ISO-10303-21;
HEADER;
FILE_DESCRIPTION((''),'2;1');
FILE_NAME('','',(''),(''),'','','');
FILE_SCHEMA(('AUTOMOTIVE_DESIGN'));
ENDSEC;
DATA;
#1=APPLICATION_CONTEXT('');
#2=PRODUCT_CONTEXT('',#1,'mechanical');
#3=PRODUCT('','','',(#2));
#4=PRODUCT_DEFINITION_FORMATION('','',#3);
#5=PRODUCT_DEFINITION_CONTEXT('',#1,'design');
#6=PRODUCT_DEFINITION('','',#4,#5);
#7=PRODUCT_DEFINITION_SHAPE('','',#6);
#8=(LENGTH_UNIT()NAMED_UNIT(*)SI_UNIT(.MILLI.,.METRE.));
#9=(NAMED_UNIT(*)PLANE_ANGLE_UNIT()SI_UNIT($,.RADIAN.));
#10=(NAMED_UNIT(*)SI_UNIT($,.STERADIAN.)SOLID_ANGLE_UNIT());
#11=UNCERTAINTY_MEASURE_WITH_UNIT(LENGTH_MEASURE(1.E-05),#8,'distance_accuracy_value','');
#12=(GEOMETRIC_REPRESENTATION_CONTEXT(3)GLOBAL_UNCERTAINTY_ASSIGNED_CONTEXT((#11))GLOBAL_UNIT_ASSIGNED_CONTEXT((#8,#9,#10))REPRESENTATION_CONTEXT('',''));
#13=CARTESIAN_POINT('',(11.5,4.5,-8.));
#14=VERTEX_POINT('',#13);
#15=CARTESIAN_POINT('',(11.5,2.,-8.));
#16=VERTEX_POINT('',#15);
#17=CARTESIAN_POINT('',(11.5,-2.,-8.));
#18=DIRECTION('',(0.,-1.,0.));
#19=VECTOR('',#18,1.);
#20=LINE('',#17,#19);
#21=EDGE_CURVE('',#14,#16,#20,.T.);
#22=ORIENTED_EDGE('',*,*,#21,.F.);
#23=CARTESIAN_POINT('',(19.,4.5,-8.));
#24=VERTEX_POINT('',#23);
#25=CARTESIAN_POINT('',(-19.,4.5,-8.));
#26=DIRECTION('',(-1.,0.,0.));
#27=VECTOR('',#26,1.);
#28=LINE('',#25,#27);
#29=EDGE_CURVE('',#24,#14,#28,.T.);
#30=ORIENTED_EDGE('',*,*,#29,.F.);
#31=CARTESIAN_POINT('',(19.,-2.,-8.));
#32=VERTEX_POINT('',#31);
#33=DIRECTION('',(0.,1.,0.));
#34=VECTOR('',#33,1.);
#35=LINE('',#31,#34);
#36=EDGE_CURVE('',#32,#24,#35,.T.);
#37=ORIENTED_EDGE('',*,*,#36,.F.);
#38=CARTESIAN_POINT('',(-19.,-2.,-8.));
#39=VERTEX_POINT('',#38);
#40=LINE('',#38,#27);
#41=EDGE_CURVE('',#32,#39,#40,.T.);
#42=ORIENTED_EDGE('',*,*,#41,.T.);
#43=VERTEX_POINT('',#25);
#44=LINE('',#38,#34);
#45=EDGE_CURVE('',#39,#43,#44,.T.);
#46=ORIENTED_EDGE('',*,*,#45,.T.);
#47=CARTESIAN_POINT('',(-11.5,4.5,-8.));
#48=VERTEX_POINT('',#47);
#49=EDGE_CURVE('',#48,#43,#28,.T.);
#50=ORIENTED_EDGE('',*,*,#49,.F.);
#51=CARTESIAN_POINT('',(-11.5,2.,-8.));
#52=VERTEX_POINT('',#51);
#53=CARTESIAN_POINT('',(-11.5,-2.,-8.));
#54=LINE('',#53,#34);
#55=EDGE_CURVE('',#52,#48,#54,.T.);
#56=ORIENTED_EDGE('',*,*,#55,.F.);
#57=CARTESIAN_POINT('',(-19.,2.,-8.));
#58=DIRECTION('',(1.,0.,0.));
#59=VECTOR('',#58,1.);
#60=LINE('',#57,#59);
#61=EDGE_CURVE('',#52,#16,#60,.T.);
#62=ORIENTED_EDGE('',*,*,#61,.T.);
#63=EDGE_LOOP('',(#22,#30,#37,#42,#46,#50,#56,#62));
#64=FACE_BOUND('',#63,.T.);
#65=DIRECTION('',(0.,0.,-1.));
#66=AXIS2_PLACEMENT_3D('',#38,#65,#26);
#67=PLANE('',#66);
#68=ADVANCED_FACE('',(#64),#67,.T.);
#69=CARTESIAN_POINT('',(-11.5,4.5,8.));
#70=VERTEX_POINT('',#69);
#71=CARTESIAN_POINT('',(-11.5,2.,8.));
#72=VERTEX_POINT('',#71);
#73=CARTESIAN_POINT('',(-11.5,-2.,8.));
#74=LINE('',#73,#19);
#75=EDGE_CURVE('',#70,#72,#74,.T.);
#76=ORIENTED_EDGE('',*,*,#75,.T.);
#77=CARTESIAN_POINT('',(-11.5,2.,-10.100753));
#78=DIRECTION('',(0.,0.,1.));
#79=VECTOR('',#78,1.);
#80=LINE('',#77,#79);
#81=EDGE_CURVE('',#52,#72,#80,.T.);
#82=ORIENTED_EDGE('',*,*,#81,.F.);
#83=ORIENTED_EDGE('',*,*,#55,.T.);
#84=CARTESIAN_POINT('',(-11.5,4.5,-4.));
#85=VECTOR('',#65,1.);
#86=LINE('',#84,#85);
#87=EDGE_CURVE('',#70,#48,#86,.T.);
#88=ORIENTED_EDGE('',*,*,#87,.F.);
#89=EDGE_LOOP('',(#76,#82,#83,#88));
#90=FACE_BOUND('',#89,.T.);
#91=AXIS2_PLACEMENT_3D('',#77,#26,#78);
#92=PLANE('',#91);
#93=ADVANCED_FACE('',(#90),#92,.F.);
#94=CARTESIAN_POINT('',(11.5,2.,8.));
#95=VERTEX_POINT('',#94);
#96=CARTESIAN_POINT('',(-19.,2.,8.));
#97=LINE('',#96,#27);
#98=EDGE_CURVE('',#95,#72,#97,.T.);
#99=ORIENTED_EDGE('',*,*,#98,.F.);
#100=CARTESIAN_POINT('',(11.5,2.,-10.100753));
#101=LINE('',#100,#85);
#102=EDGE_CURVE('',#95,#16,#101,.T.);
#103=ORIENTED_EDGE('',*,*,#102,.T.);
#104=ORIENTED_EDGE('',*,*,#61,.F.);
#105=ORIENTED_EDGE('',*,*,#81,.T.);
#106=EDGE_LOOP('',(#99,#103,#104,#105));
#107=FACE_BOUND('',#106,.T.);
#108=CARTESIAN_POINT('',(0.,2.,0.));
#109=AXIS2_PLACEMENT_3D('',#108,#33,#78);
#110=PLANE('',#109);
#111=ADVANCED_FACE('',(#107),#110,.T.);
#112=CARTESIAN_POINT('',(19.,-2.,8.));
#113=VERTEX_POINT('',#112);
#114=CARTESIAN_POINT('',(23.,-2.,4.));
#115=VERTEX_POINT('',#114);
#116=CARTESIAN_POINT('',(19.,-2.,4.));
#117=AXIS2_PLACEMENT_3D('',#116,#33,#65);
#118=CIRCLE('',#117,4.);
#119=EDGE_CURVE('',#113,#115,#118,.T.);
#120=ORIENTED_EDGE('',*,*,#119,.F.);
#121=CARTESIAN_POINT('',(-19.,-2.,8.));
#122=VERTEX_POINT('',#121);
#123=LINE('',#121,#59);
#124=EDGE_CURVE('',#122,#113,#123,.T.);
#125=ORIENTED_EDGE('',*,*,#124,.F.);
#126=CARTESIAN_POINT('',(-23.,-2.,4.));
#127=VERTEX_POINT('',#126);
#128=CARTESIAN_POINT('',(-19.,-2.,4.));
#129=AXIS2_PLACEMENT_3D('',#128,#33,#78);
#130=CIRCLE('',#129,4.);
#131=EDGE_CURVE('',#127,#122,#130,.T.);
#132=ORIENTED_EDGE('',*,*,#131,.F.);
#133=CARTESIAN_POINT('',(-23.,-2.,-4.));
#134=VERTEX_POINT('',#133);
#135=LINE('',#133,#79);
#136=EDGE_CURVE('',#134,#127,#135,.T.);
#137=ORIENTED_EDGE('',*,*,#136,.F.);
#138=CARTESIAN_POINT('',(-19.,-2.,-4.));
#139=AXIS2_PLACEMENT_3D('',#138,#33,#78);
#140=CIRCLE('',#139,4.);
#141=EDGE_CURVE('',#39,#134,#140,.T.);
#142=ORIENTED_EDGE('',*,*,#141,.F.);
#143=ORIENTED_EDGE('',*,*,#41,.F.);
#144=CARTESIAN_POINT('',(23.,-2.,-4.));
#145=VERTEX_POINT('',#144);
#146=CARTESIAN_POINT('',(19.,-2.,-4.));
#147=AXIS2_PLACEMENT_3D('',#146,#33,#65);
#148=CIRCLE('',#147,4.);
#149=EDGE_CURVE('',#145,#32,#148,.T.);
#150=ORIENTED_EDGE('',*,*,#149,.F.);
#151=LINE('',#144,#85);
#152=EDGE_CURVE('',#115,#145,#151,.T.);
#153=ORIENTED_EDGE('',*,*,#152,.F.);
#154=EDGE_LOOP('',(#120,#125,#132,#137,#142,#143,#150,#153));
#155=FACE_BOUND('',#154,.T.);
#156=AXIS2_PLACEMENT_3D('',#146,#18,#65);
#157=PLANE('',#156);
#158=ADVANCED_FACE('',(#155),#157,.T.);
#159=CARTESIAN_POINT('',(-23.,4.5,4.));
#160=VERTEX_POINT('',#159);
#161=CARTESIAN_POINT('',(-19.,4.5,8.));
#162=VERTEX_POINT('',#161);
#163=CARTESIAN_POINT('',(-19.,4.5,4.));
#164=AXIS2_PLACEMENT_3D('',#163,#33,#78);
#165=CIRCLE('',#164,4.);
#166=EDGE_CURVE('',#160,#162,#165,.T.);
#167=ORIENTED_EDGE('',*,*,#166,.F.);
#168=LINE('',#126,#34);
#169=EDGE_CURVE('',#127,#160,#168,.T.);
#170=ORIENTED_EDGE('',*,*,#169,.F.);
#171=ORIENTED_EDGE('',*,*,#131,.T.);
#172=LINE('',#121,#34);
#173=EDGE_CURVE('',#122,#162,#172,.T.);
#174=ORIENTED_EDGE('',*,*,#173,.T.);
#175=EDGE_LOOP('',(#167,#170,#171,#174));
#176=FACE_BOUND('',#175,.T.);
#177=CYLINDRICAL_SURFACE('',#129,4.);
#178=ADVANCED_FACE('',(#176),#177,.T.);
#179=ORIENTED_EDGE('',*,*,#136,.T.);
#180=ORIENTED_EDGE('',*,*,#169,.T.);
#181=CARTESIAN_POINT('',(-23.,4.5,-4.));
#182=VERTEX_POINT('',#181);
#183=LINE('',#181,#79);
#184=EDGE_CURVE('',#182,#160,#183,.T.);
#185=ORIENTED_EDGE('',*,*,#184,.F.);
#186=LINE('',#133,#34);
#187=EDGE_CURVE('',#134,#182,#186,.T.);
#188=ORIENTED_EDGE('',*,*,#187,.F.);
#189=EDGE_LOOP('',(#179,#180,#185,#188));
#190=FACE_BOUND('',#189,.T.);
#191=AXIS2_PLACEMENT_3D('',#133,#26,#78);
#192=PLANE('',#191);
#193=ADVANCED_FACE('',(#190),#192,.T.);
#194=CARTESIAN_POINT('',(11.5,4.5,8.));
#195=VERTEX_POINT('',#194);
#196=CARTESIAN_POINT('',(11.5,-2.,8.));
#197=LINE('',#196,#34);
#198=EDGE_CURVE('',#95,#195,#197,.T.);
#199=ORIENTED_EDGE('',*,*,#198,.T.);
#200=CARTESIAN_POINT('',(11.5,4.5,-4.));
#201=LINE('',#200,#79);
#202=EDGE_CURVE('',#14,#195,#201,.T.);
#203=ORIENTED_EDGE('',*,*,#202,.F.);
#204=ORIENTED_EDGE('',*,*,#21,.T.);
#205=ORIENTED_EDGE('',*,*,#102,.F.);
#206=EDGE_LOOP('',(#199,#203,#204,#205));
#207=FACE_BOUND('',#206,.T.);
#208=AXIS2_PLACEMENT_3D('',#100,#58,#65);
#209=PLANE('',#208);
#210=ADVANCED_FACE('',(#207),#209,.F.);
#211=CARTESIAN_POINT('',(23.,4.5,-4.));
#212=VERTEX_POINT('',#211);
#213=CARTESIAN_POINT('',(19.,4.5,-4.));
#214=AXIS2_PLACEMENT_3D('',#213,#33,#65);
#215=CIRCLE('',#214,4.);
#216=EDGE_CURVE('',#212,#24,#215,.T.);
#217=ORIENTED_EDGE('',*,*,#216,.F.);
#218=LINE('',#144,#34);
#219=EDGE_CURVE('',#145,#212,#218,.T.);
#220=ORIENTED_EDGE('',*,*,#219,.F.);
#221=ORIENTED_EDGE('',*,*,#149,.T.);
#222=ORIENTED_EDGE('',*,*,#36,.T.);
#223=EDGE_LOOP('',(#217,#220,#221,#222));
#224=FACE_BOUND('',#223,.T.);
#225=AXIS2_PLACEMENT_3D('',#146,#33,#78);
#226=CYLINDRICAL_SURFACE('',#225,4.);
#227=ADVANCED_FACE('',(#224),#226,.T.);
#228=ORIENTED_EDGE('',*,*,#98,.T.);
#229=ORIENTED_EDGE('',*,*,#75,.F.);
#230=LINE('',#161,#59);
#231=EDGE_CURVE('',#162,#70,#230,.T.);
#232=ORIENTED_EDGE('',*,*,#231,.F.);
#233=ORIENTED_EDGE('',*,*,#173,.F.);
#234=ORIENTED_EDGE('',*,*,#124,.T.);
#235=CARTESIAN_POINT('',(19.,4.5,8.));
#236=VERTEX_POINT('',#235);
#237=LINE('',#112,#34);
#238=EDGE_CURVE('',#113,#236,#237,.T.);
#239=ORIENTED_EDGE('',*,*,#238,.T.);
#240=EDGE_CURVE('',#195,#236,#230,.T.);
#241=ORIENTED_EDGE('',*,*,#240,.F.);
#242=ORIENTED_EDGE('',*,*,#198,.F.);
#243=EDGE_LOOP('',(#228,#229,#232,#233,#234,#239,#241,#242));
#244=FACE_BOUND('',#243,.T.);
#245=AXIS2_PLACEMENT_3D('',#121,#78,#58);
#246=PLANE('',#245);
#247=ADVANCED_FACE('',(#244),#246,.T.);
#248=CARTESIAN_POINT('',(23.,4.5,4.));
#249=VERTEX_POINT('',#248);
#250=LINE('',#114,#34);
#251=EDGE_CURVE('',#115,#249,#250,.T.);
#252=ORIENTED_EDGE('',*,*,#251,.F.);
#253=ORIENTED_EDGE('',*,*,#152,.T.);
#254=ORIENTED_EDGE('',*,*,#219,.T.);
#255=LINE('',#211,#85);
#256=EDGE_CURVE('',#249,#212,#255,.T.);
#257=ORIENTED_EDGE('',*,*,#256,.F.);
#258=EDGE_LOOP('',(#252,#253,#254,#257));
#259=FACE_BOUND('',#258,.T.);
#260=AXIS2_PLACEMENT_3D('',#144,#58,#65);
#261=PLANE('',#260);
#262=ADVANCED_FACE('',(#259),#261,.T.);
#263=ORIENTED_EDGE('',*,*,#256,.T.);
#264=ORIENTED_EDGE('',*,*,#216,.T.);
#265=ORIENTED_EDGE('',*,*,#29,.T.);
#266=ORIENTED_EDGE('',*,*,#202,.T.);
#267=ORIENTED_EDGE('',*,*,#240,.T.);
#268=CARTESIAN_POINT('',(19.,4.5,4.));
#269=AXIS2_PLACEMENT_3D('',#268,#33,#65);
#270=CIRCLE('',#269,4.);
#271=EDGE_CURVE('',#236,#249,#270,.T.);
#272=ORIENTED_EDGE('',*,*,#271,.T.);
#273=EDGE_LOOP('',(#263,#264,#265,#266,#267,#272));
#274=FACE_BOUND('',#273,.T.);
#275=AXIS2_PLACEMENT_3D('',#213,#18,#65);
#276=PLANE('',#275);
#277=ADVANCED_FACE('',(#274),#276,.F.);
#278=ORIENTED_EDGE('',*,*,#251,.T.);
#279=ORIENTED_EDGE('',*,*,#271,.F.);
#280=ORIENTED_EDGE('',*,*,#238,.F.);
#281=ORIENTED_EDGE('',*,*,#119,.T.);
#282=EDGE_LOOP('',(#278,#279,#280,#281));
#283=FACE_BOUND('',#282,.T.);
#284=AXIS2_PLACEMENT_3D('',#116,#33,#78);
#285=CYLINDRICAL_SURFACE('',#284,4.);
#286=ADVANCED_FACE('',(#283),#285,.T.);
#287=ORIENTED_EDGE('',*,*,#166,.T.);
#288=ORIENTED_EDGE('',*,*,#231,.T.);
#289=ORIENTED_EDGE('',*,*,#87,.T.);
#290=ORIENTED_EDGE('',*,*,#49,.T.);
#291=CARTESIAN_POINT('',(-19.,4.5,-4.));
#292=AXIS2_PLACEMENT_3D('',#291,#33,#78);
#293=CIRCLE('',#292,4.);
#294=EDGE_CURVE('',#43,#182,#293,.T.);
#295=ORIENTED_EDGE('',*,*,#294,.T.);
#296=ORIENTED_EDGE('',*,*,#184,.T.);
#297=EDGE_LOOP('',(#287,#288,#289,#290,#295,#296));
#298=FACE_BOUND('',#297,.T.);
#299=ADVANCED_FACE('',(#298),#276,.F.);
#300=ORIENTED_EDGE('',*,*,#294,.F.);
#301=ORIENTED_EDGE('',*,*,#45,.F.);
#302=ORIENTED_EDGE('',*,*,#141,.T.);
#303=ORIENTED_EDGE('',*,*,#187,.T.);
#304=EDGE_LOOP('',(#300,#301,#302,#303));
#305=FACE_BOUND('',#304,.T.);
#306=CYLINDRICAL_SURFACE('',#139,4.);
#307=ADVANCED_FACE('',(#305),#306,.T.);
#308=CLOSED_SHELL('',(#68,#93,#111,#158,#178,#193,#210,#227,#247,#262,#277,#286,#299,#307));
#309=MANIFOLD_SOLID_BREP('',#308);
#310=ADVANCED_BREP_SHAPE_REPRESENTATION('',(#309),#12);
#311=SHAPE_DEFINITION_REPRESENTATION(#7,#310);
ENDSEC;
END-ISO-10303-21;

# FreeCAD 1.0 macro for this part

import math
import FreeCAD as App
import Part
import Sketcher
from FreeCAD import Vector

doc = App.newDocument("Part")
body = doc.addObject("PartDesign::Body", "Body")

# Sketch on XZ plane
sketch1 = body.newObject("Sketcher::SketchObject", "Sketch")
sketch1.AttachmentSupport = (doc.getObject("XZ_Plane"), [""])
sketch1.MapMode = "FlatFace"
sketch1.addGeometry(Part.LineSegment(Vector(19, -8, 0), Vector(-19, -8, 0)), False)
sketch1.addGeometry(Part.ArcOfCircle(Part.Circle(Vector(-19, -4, 0), Vector(0, 0, 1), 4), math.radians(180), math.radians(270)), False)
sketch1.addGeometry(Part.LineSegment(Vector(-23, -4, 0), Vector(-23, 4, 0)), False)
sketch1.addGeometry(Part.ArcOfCircle(Part.Circle(Vector(-19, 4, 0), Vector(0, 0, 1), 4), math.radians(90), math.radians(180)), False)
sketch1.addGeometry(Part.LineSegment(Vector(-19, 8, 0), Vector(19, 8, 0)), False)
sketch1.addGeometry(Part.ArcOfCircle(Part.Circle(Vector(19, 4, 0), Vector(0, 0, 1), 4), math.radians(0), math.radians(90)), False)
sketch1.addGeometry(Part.LineSegment(Vector(23, 4, 0), Vector(23, -4, 0)), False)
sketch1.addGeometry(Part.ArcOfCircle(Part.Circle(Vector(19, -4, 0), Vector(0, 0, 1), 4), math.radians(-90), math.radians(0)), False)
sketch1.addConstraint(Sketcher.Constraint("Tangent", 0, 2, 1, 2))
sketch1.addConstraint(Sketcher.Constraint("Tangent", 1, 1, 2, 1))
sketch1.addConstraint(Sketcher.Constraint("Tangent", 2, 2, 3, 2))
sketch1.addConstraint(Sketcher.Constraint("Tangent", 3, 1, 4, 1))
sketch1.addConstraint(Sketcher.Constraint("Tangent", 4, 2, 5, 2))
sketch1.addConstraint(Sketcher.Constraint("Tangent", 5, 1, 6, 1))
sketch1.addConstraint(Sketcher.Constraint("Tangent", 6, 2, 7, 2))
sketch1.addConstraint(Sketcher.Constraint("Tangent", 7, 1, 0, 1))
sketch1.addConstraint(Sketcher.Constraint("Horizontal", 0))
sketch1.addConstraint(Sketcher.Constraint("Vertical", 2))
sketch1.addConstraint(Sketcher.Constraint("Horizontal", 4))
sketch1.addConstraint(Sketcher.Constraint("Vertical", 6))
sketch1.addConstraint(Sketcher.Constraint("Equal", 1, 3))
sketch1.addConstraint(Sketcher.Constraint("Equal", 3, 5))
sketch1.addConstraint(Sketcher.Constraint("Equal", 5, 7))
sketch1.addConstraint(Sketcher.Constraint("Symmetric", 1, 3, 5, 3, -1, 1))
sketch1.addConstraint(Sketcher.Constraint("Radius", 1, 4.0))
sketch1.addConstraint(Sketcher.Constraint("DistanceX", 0, 2, 0, 1, 38.0))
sketch1.addConstraint(Sketcher.Constraint("DistanceY", 2, 1, 2, 2, 8.0))
pad1 = body.newObject("PartDesign::Pad", "Pad")
pad1.Profile = sketch1
pad1.Type = "TwoLengths"
pad1.Length = 4.5
pad1.Length2 = 2
pad1.Reversed = True

# Sketch on XZ plane
sketch2 = body.newObject("Sketcher::SketchObject", "Sketch001")
sketch2.AttachmentSupport = (doc.getObject("XZ_Plane"), [""])
sketch2.MapMode = "FlatFace"
sketch2.AttachmentOffset = App.Placement(Vector(0, 0, -4.5), App.Rotation())
sketch2.addGeometry(Part.LineSegment(Vector(-12, -10, 0), Vector(-12, 10, 0)), False)
sketch2.addGeometry(Part.LineSegment(Vector(-12, 10, 0), Vector(12, 10, 0)), False)
sketch2.addGeometry(Part.LineSegment(Vector(12, 10, 0), Vector(12, -10, 0)), False)
sketch2.addGeometry(Part.LineSegment(Vector(12, -10, 0), Vector(-12, -10, 0)), False)
sketch2.addConstraint(Sketcher.Constraint("Coincident", 0, 2, 1, 1))
sketch2.addConstraint(Sketcher.Constraint("Coincident", 1, 2, 2, 1))
sketch2.addConstraint(Sketcher.Constraint("Coincident", 2, 2, 3, 1))
sketch2.addConstraint(Sketcher.Constraint("Coincident", 3, 2, 0, 1))
sketch2.addConstraint(Sketcher.Constraint("Vertical", 0))
sketch2.addConstraint(Sketcher.Constraint("Horizontal", 1))
sketch2.addConstraint(Sketcher.Constraint("Vertical", 2))
sketch2.addConstraint(Sketcher.Constraint("Horizontal", 3))
sketch2.addConstraint(Sketcher.Constraint("Symmetric", 0, 2, 2, 2, -1, 1))
sketch2.addConstraint(Sketcher.Constraint("DistanceX", 1, 1, 1, 2, 23.0))
sketch2.addConstraint(Sketcher.Constraint("DistanceY", 0, 1, 0, 2, 20.201506))
pocket1 = body.newObject("PartDesign::Pocket", "Pocket")
pocket1.Profile = sketch2
pocket1.Length = 2.5
pocket1.Reversed = True

doc.recompute()
